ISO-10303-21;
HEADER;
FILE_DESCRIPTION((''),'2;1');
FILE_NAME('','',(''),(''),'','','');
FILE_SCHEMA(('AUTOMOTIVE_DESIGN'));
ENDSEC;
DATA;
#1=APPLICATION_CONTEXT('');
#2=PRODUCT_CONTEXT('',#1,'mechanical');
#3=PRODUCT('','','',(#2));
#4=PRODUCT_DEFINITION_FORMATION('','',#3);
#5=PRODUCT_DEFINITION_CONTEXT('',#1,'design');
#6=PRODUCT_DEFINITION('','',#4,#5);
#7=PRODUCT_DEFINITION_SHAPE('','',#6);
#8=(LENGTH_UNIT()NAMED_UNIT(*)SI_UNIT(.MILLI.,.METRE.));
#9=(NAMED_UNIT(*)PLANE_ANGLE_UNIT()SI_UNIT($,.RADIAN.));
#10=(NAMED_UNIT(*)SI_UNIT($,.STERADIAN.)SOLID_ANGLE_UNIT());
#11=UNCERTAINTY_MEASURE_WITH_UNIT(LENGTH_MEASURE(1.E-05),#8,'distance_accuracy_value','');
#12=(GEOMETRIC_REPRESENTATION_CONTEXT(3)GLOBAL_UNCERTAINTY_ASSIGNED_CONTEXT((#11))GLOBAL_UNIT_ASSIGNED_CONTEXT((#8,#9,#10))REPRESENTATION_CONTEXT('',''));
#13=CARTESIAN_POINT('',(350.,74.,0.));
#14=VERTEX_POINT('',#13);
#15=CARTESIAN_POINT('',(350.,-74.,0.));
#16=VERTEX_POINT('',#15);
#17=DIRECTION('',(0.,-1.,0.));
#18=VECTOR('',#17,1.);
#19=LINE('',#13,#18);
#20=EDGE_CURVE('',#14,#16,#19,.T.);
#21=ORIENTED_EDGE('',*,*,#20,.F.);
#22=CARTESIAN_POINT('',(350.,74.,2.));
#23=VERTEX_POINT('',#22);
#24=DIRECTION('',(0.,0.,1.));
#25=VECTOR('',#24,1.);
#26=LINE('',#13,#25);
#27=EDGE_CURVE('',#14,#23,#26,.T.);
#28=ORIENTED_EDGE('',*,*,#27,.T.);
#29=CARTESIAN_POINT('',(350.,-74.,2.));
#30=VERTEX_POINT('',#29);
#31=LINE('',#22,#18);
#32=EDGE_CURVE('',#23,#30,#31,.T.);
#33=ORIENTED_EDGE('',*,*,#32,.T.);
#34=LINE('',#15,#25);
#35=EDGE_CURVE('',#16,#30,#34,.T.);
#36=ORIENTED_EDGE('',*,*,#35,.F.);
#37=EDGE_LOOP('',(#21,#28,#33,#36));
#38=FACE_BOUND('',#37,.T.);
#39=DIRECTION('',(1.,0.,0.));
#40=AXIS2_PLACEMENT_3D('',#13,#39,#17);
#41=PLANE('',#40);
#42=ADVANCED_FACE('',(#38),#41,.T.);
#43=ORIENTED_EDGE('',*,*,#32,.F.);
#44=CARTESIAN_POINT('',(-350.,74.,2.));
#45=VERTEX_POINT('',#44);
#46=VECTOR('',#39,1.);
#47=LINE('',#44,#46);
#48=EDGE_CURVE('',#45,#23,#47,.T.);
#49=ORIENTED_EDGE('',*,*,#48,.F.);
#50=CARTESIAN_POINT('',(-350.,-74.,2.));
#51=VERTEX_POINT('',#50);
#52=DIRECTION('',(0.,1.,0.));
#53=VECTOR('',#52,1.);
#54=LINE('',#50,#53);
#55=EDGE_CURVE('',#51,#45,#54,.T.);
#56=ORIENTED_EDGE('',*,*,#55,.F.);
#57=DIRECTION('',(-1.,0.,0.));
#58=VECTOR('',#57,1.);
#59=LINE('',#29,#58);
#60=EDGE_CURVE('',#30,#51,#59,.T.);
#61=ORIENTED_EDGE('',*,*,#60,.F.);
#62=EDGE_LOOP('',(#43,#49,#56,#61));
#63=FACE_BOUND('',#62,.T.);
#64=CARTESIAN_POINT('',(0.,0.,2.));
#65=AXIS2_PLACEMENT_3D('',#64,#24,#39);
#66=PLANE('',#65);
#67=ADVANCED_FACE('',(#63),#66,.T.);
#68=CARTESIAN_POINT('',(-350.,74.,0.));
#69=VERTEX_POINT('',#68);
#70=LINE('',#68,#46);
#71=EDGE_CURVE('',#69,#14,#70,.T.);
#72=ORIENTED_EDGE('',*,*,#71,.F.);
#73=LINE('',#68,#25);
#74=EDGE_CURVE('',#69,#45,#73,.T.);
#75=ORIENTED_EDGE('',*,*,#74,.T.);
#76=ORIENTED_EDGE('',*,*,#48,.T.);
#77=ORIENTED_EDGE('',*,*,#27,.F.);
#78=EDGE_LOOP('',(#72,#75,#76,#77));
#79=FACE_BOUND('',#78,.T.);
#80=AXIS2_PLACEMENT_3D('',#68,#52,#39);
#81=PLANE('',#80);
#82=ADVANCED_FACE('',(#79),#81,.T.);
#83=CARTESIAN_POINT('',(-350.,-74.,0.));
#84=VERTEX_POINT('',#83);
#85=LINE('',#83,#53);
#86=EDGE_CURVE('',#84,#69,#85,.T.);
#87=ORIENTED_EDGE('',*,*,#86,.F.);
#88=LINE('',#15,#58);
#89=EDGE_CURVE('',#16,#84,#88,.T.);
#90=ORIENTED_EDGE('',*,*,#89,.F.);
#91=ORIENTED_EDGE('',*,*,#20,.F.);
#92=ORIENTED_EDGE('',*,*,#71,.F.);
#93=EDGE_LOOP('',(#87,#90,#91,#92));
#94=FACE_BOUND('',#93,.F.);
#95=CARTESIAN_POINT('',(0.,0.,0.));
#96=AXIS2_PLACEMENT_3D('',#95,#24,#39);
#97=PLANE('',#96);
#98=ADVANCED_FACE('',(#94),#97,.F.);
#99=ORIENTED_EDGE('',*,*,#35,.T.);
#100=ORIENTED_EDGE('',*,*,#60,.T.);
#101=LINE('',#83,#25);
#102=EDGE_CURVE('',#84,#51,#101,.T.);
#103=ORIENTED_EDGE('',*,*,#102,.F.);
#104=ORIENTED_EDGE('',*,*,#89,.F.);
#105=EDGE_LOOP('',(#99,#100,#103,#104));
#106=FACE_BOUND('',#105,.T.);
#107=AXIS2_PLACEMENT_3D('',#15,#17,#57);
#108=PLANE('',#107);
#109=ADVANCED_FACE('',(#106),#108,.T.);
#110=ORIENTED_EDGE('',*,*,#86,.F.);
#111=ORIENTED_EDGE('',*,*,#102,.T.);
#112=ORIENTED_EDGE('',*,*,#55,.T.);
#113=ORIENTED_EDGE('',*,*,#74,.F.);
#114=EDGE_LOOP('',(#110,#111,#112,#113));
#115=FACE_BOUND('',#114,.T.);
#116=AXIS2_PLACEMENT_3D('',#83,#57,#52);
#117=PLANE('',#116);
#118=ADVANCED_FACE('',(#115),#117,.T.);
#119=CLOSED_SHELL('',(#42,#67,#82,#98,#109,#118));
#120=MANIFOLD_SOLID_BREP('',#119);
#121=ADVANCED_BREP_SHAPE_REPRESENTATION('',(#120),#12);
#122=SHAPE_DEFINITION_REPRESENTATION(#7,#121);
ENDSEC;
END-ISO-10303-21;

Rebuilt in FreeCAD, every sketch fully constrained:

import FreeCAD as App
import Part
import Sketcher

V = App.Vector
Q = App.Units.Quantity

doc = App.newDocument("Part")
body = doc.addObject("PartDesign::Body", "Body")

# Sketch on XY plane
sketch1 = doc.addObject("Sketcher::SketchObject", "Sketch")
body.addObject(sketch1)
sketch1.AttachmentSupport = (doc.XY_Plane, [""])
sketch1.MapMode = "FlatFace"
sketch1.addGeometry([
    Part.LineSegment(V(350, 74, 0), V(-350, 74, 0)),
    Part.LineSegment(V(-350, 74, 0), V(-350, -74, 0)),
    Part.LineSegment(V(-350, -74, 0), V(350, -74, 0)),
    Part.LineSegment(V(350, -74, 0), V(350, 74, 0)),
], False)
sketch1.addConstraint([
    Sketcher.Constraint("Coincident", 0, 2, 1, 1),
    Sketcher.Constraint("Coincident", 1, 2, 2, 1),
    Sketcher.Constraint("Coincident", 2, 2, 3, 1),
    Sketcher.Constraint("Coincident", 3, 2, 0, 1),
    Sketcher.Constraint("Horizontal", 0),
    Sketcher.Constraint("Vertical", 1),
    Sketcher.Constraint("Horizontal", 2),
    Sketcher.Constraint("Vertical", 3),
    Sketcher.Constraint("Symmetric", 0, 2, 2, 2, -1, 1),
    Sketcher.Constraint("DistanceX", 0, 2, 0, 1, Q("700 mm")),
    Sketcher.Constraint("DistanceY", 1, 2, 1, 1, Q("148 mm")),
])
pad1 = doc.addObject("PartDesign::Pad", "Pad")
body.addObject(pad1)
pad1.Profile = sketch1
pad1.Length = 2

doc.recompute()
